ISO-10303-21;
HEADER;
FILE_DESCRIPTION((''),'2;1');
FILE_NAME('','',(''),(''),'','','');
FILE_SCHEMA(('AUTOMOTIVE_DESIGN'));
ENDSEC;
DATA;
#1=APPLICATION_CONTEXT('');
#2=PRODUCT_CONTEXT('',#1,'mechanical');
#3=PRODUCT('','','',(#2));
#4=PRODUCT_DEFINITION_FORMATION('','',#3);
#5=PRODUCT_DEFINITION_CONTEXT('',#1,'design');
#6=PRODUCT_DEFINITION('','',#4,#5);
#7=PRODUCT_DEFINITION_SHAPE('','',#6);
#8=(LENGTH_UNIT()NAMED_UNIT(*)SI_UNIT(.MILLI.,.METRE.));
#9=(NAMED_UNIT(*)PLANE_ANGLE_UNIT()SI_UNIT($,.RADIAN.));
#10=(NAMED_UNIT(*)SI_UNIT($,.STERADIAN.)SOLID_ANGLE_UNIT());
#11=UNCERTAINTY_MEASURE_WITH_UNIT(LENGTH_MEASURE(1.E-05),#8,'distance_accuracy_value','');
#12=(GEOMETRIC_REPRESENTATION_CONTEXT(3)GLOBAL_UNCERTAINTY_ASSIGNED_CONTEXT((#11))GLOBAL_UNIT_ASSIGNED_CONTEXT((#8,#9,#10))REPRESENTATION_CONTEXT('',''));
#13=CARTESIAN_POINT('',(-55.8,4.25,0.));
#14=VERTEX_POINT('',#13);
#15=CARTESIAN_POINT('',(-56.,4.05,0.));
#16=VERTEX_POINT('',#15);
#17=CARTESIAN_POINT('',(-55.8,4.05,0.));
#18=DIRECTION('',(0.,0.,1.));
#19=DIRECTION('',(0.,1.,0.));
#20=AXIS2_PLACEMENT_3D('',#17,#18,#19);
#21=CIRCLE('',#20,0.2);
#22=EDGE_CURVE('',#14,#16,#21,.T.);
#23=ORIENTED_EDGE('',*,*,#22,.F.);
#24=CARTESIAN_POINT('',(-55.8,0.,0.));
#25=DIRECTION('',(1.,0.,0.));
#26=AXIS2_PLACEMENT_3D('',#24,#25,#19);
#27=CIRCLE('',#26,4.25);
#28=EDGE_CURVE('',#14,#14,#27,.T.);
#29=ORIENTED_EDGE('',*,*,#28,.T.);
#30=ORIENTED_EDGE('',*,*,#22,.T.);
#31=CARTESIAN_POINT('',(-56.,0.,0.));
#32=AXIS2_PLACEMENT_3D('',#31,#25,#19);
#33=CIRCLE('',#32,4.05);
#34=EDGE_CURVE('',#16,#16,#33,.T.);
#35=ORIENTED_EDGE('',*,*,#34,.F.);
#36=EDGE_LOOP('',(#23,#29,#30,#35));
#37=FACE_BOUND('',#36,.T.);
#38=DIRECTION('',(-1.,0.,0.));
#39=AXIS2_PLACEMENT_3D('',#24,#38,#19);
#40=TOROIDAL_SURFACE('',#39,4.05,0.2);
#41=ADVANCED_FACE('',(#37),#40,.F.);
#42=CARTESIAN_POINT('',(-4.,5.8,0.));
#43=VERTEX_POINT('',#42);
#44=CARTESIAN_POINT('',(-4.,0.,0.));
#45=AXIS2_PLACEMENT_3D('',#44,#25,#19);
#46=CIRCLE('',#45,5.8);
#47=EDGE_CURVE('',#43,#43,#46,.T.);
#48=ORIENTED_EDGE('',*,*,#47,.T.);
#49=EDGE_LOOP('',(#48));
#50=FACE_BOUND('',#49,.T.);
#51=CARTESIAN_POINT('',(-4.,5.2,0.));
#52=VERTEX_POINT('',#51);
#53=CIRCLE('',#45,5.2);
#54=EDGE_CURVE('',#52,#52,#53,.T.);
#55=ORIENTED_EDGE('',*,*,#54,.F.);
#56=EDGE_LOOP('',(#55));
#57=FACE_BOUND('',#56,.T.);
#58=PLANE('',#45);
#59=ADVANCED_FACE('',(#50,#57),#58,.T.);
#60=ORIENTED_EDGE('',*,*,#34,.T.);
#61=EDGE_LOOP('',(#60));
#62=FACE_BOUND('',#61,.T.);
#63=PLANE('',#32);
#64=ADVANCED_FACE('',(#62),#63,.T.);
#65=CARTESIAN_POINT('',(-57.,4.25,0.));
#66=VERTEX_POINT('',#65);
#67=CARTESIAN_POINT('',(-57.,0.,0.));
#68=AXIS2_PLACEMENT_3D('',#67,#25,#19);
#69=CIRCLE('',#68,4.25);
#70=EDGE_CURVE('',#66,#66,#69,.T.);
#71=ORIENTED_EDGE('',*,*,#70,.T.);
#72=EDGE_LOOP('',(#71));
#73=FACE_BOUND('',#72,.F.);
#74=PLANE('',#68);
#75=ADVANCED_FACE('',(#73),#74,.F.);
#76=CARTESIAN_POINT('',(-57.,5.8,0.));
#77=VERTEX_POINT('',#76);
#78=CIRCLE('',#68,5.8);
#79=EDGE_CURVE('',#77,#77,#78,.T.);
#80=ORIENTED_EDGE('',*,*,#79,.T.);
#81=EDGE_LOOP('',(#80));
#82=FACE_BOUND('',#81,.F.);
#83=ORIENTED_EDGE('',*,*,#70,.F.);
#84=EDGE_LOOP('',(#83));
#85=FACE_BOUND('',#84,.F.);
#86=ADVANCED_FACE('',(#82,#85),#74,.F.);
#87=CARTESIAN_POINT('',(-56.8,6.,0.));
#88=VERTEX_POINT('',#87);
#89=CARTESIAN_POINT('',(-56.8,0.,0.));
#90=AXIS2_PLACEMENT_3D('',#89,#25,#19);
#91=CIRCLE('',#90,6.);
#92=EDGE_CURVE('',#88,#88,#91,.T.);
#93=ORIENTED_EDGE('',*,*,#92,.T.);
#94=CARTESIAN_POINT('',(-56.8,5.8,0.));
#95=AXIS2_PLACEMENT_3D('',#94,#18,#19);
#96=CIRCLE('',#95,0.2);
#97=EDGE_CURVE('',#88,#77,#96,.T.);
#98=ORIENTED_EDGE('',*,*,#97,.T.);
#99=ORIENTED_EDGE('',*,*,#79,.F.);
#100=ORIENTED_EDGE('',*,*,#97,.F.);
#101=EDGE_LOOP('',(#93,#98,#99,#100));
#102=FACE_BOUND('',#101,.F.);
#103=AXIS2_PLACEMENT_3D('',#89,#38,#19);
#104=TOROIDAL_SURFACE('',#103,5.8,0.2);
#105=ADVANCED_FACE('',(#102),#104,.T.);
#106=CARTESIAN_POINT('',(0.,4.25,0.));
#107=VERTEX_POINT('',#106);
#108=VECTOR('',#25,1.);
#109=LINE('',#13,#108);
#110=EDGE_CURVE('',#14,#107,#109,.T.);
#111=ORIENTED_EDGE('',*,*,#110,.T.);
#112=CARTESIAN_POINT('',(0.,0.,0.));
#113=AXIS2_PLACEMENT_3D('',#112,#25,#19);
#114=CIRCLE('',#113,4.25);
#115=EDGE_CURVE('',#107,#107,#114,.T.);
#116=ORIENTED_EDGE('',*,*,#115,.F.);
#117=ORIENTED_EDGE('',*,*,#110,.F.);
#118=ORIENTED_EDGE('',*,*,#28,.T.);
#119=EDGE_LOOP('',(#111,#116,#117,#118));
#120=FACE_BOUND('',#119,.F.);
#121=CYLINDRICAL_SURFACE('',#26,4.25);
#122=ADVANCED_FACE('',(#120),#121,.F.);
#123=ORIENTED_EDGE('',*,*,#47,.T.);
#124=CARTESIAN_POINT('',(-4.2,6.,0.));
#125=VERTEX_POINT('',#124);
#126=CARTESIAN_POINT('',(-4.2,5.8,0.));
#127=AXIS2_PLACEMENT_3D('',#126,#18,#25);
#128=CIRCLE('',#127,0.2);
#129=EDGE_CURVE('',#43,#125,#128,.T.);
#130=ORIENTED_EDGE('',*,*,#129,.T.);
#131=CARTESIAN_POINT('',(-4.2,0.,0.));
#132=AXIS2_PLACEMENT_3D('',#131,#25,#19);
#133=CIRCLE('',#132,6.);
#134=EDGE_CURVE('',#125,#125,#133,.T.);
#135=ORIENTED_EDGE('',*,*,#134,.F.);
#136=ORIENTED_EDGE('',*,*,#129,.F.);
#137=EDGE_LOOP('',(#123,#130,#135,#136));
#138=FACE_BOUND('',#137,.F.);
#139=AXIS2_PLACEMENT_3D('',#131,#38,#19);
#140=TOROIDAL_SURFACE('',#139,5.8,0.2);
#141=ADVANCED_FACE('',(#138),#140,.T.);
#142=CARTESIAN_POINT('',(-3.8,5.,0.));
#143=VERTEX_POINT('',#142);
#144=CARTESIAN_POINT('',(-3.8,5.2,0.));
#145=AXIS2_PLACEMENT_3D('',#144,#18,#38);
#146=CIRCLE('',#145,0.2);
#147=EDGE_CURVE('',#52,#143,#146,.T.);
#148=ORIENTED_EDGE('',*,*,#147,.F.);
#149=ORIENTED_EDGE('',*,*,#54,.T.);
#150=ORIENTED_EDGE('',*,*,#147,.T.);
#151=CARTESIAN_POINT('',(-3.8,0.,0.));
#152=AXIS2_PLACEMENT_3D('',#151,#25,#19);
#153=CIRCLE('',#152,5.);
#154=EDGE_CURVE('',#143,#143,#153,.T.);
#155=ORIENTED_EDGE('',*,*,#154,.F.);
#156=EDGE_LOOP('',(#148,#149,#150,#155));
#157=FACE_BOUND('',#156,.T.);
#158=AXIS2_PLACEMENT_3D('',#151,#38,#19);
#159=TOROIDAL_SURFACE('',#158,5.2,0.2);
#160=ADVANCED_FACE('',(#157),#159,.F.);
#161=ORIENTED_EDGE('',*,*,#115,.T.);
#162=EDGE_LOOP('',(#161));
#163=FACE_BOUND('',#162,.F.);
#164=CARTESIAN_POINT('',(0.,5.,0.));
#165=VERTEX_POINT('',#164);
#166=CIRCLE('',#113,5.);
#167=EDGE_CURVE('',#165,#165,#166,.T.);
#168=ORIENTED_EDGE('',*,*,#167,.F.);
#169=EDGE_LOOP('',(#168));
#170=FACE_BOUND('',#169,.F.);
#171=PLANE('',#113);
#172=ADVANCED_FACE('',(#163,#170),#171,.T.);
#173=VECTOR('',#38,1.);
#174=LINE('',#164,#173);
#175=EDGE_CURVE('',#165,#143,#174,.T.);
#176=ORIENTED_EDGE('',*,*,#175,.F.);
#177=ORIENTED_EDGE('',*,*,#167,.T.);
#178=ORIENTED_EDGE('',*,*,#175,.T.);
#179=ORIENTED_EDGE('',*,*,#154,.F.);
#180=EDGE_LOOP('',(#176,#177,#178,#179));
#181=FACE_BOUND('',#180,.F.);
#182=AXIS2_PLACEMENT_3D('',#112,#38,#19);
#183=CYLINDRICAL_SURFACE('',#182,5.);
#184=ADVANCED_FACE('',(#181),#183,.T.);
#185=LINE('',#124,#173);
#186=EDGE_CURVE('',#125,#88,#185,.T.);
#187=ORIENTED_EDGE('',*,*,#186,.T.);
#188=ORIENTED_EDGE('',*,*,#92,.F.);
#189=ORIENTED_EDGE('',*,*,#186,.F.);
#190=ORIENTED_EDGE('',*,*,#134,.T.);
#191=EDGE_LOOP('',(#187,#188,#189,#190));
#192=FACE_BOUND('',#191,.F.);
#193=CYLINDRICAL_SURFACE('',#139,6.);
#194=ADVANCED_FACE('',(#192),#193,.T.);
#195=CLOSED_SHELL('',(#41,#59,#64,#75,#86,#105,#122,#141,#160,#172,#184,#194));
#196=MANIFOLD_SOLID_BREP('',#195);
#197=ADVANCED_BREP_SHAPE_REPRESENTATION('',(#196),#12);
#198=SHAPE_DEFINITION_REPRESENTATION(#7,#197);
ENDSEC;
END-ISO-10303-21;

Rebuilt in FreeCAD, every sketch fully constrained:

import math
import FreeCAD as App
import Part
import Sketcher
from FreeCAD import Vector

doc = App.newDocument("Part")
body = doc.addObject("PartDesign::Body", "Body")

sketch1 = doc.addObject("Sketcher::SketchObject", "Sketch")
body.addObject(sketch1)
sketch1.AttachmentSupport = (doc.XY_Plane, [""])
sketch1.MapMode = "FlatFace"
sketch1.addGeometry(Part.LineSegment(Vector(0, 4.25, 0), Vector(0, 5, 0)), False)
sketch1.addGeometry(Part.LineSegment(Vector(0, 5, 0), Vector(-3.8, 5, 0)), False)
sketch1.addGeometry(Part.ArcOfCircle(Part.Circle(Vector(-3.8, 5.2, 0), Vector(0, 0, 1), 0.2), math.radians(180), math.radians(270)), False)
sketch1.addGeometry(Part.LineSegment(Vector(-4, 5.2, 0), Vector(-4, 5.8, 0)), False)
sketch1.addGeometry(Part.ArcOfCircle(Part.Circle(Vector(-4.2, 5.8, 0), Vector(0, 0, 1), 0.2), math.radians(0), math.radians(90)), False)
sketch1.addGeometry(Part.LineSegment(Vector(-4.2, 6, 0), Vector(-56.8, 6, 0)), False)
sketch1.addGeometry(Part.ArcOfCircle(Part.Circle(Vector(-56.8, 5.8, 0), Vector(0, 0, 1), 0.2), math.radians(90), math.radians(180)), False)
sketch1.addGeometry(Part.LineSegment(Vector(-57, 5.8, 0), Vector(-57, 0, 0)), False)
sketch1.addGeometry(Part.LineSegment(Vector(-57, 0, 0), Vector(-56, 0, 0)), False)
sketch1.addGeometry(Part.LineSegment(Vector(-56, 0, 0), Vector(-56, 4.05, 0)), False)
sketch1.addGeometry(Part.ArcOfCircle(Part.Circle(Vector(-55.8, 4.05, 0), Vector(0, 0, 1), 0.2), math.radians(90), math.radians(180)), False)
sketch1.addGeometry(Part.LineSegment(Vector(-55.8, 4.25, 0), Vector(0, 4.25, 0)), False)
sketch1.addConstraint(Sketcher.Constraint("Coincident", 0, 2, 1, 1))
sketch1.addConstraint(Sketcher.Constraint("Tangent", 1, 2, 2, 2))
sketch1.addConstraint(Sketcher.Constraint("Tangent", 2, 1, 3, 1))
sketch1.addConstraint(Sketcher.Constraint("Tangent", 3, 2, 4, 1))
sketch1.addConstraint(Sketcher.Constraint("Tangent", 4, 2, 5, 1))
sketch1.addConstraint(Sketcher.Constraint("Tangent", 5, 2, 6, 1))
sketch1.addConstraint(Sketcher.Constraint("Tangent", 6, 2, 7, 1))
sketch1.addConstraint(Sketcher.Constraint("Coincident", 7, 2, 8, 1))
sketch1.addConstraint(Sketcher.Constraint("Coincident", 8, 2, 9, 1))
sketch1.addConstraint(Sketcher.Constraint("Tangent", 9, 2, 10, 2))
sketch1.addConstraint(Sketcher.Constraint("Tangent", 10, 1, 11, 1))
sketch1.addConstraint(Sketcher.Constraint("Coincident", 11, 2, 0, 1))
sketch1.addConstraint(Sketcher.Constraint("Vertical", 0))
sketch1.addConstraint(Sketcher.Constraint("Horizontal", 1))
sketch1.addConstraint(Sketcher.Constraint("Vertical", 3))
sketch1.addConstraint(Sketcher.Constraint("Horizontal", 5))
sketch1.addConstraint(Sketcher.Constraint("Vertical", 7))
sketch1.addConstraint(Sketcher.Constraint("Horizontal", 8))
sketch1.addConstraint(Sketcher.Constraint("Vertical", 9))
sketch1.addConstraint(Sketcher.Constraint("Horizontal", 11))
sketch1.addConstraint(Sketcher.Constraint("Equal", 2, 4))
sketch1.addConstraint(Sketcher.Constraint("Equal", 4, 6))
sketch1.addConstraint(Sketcher.Constraint("Equal", 6, 10))
sketch1.addConstraint(Sketcher.Constraint("PointOnObject", 0, 2, -2))
sketch1.addConstraint(Sketcher.Constraint("PointOnObject", 7, 2, -1))
sketch1.addConstraint(Sketcher.Constraint("Radius", 2, 0.2))
sketch1.addConstraint(Sketcher.Constraint("DistanceX", 8, 1, 8, 2, 1.0))
sketch1.addConstraint(Sketcher.Constraint("DistanceX", 2, 1, -1, 1, 4.0))
sketch1.addConstraint(Sketcher.Constraint("DistanceX", 6, 2, -1, 1, 57.0))
sketch1.addConstraint(Sketcher.Constraint("DistanceY", 1, 2, 4, 2, 1.0))
sketch1.addConstraint(Sketcher.Constraint("DistanceY", 7, 2, 7, 1, 5.8))
sketch1.addConstraint(Sketcher.Constraint("DistanceY", 0, 1, 0, 2, 0.75))
revolution = doc.addObject("PartDesign::Revolution", "Revolution")
body.addObject(revolution)
revolution.Profile = sketch1
revolution.ReferenceAxis = (sketch1, ["H_Axis"])
revolution.Angle = 360

doc.recompute()
